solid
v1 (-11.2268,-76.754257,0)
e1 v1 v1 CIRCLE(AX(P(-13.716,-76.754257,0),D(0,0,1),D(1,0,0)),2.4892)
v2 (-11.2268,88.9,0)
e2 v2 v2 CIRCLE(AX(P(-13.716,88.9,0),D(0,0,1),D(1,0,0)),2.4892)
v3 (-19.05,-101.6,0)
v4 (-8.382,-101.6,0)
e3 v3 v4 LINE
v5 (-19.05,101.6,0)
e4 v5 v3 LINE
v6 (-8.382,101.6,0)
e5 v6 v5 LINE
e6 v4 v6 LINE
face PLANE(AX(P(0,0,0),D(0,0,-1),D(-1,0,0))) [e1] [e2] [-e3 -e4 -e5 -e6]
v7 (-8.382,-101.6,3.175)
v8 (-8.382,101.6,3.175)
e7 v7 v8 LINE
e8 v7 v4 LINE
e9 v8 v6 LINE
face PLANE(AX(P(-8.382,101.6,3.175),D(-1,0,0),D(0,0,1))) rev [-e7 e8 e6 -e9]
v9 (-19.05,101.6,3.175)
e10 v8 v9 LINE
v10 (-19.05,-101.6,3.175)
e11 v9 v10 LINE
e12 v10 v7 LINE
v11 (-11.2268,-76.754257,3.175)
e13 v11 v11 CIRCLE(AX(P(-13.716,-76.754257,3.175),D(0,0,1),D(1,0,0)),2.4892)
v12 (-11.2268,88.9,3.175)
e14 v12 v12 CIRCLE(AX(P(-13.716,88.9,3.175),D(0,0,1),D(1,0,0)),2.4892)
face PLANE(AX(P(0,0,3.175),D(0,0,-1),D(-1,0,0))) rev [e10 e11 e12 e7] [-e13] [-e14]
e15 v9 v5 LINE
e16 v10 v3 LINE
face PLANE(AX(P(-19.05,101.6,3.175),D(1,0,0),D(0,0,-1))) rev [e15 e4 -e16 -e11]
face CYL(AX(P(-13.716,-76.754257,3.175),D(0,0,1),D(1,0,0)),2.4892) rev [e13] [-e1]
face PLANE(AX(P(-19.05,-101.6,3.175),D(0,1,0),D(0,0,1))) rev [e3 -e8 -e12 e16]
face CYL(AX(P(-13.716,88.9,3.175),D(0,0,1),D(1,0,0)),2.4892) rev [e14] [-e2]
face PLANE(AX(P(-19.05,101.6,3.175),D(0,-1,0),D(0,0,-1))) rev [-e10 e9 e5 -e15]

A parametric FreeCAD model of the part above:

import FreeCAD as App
import Part
import Sketcher
Q = App.Units.Quantity

doc = App.newDocument("Part")
body = doc.addObject("PartDesign::Body", "Body")

# Sketch on XY plane
sketch1 = body.newObject("Sketcher::SketchObject", "Sketch")
sketch1.AttachmentSupport = (doc.getObject("XY_Plane"), [""])
sketch1.MapMode = "FlatFace"
sketch1.addGeometry([
    Part.LineSegment(App.Vector(-19, 102, 0), App.Vector(-19, -102, 0)),
    Part.LineSegment(App.Vector(-19, -102, 0), App.Vector(-8, -102, 0)),
    Part.LineSegment(App.Vector(-8, -102, 0), App.Vector(-8, 102, 0)),
    Part.LineSegment(App.Vector(-8, 102, 0), App.Vector(-19, 102, 0)),
], False)
sketch1.addConstraint([
    Sketcher.Constraint("Coincident", 0, 2, 1, 1),
    Sketcher.Constraint("Coincident", 1, 2, 2, 1),
    Sketcher.Constraint("Coincident", 2, 2, 3, 1),
    Sketcher.Constraint("Coincident", 3, 2, 0, 1),
    Sketcher.Constraint("Vertical", 0),
    Sketcher.Constraint("Horizontal", 1),
    Sketcher.Constraint("Vertical", 2),
    Sketcher.Constraint("Horizontal", 3),
    Sketcher.Constraint("DistanceY", 0, 2, 0, 1, Q("8 in")),
    Sketcher.Constraint("DistanceY", 0, 2, -1, 1, Q("4 in")),
    Sketcher.Constraint("DistanceX", 1, 1, 1, 2, Q("0.42 in")),
    Sketcher.Constraint("DistanceX", 0, 2, -1, 1, Q("0.75 in")),
])
pad1 = body.newObject("PartDesign::Pad", "Pad")
pad1.Profile = sketch1
pad1.Length = Q("0.125 in")

# Sketch on XY plane
sketch2 = body.newObject("Sketcher::SketchObject", "Sketch001")
sketch2.AttachmentSupport = (doc.getObject("XY_Plane"), [""])
sketch2.MapMode = "FlatFace"
sketch2.AttachmentOffset = App.Placement(App.Vector(0, 0, 0.125 * 25.4), App.Rotation())
sketch2.addGeometry(Part.Circle(App.Vector(-13.7, -76.8, 0), App.Vector(0, 0, 1), 2.5), False)
sketch2.addConstraint([
    Sketcher.Constraint("Diameter", 0, Q("0.196 in")),
    Sketcher.Constraint("DistanceX", 0, 3, -1, 1, Q("0.54 in")),
    Sketcher.Constraint("DistanceY", 0, 3, -1, 1, Q("76.754257 mm")),
])
doc.recompute()
hole = body.newObject("PartDesign::Hole", "Hole")
hole.Profile = sketch2
hole.ThreadType = "None"
hole.Diameter = Q("0.196 in")
hole.DepthType = "ThroughAll"

# Sketch on XY plane
sketch3 = body.newObject("Sketcher::SketchObject", "Sketch002")
sketch3.AttachmentSupport = (doc.getObject("XY_Plane"), [""])
sketch3.MapMode = "FlatFace"
sketch3.AttachmentOffset = App.Placement(App.Vector(0, 0, 0.125 * 25.4), App.Rotation())
sketch3.addGeometry(Part.Circle(App.Vector(-13.7, 88.9, 0), App.Vector(0, 0, 1), 2.5), False)
sketch3.addConstraint([
    Sketcher.Constraint("Diameter", 0, Q("0.196 in")),
    Sketcher.Constraint("DistanceY", -1, 1, 0, 3, Q("3.5 in")),
    Sketcher.Constraint("DistanceX", 0, 3, -1, 1, Q("0.54 in")),
])
doc.recompute()
hole2 = body.newObject("PartDesign::Hole", "Hole001")
hole2.Profile = sketch3
hole2.ThreadType = "None"
hole2.Diameter = Q("0.196 in")
hole2.DepthType = "ThroughAll"

doc.recompute()
